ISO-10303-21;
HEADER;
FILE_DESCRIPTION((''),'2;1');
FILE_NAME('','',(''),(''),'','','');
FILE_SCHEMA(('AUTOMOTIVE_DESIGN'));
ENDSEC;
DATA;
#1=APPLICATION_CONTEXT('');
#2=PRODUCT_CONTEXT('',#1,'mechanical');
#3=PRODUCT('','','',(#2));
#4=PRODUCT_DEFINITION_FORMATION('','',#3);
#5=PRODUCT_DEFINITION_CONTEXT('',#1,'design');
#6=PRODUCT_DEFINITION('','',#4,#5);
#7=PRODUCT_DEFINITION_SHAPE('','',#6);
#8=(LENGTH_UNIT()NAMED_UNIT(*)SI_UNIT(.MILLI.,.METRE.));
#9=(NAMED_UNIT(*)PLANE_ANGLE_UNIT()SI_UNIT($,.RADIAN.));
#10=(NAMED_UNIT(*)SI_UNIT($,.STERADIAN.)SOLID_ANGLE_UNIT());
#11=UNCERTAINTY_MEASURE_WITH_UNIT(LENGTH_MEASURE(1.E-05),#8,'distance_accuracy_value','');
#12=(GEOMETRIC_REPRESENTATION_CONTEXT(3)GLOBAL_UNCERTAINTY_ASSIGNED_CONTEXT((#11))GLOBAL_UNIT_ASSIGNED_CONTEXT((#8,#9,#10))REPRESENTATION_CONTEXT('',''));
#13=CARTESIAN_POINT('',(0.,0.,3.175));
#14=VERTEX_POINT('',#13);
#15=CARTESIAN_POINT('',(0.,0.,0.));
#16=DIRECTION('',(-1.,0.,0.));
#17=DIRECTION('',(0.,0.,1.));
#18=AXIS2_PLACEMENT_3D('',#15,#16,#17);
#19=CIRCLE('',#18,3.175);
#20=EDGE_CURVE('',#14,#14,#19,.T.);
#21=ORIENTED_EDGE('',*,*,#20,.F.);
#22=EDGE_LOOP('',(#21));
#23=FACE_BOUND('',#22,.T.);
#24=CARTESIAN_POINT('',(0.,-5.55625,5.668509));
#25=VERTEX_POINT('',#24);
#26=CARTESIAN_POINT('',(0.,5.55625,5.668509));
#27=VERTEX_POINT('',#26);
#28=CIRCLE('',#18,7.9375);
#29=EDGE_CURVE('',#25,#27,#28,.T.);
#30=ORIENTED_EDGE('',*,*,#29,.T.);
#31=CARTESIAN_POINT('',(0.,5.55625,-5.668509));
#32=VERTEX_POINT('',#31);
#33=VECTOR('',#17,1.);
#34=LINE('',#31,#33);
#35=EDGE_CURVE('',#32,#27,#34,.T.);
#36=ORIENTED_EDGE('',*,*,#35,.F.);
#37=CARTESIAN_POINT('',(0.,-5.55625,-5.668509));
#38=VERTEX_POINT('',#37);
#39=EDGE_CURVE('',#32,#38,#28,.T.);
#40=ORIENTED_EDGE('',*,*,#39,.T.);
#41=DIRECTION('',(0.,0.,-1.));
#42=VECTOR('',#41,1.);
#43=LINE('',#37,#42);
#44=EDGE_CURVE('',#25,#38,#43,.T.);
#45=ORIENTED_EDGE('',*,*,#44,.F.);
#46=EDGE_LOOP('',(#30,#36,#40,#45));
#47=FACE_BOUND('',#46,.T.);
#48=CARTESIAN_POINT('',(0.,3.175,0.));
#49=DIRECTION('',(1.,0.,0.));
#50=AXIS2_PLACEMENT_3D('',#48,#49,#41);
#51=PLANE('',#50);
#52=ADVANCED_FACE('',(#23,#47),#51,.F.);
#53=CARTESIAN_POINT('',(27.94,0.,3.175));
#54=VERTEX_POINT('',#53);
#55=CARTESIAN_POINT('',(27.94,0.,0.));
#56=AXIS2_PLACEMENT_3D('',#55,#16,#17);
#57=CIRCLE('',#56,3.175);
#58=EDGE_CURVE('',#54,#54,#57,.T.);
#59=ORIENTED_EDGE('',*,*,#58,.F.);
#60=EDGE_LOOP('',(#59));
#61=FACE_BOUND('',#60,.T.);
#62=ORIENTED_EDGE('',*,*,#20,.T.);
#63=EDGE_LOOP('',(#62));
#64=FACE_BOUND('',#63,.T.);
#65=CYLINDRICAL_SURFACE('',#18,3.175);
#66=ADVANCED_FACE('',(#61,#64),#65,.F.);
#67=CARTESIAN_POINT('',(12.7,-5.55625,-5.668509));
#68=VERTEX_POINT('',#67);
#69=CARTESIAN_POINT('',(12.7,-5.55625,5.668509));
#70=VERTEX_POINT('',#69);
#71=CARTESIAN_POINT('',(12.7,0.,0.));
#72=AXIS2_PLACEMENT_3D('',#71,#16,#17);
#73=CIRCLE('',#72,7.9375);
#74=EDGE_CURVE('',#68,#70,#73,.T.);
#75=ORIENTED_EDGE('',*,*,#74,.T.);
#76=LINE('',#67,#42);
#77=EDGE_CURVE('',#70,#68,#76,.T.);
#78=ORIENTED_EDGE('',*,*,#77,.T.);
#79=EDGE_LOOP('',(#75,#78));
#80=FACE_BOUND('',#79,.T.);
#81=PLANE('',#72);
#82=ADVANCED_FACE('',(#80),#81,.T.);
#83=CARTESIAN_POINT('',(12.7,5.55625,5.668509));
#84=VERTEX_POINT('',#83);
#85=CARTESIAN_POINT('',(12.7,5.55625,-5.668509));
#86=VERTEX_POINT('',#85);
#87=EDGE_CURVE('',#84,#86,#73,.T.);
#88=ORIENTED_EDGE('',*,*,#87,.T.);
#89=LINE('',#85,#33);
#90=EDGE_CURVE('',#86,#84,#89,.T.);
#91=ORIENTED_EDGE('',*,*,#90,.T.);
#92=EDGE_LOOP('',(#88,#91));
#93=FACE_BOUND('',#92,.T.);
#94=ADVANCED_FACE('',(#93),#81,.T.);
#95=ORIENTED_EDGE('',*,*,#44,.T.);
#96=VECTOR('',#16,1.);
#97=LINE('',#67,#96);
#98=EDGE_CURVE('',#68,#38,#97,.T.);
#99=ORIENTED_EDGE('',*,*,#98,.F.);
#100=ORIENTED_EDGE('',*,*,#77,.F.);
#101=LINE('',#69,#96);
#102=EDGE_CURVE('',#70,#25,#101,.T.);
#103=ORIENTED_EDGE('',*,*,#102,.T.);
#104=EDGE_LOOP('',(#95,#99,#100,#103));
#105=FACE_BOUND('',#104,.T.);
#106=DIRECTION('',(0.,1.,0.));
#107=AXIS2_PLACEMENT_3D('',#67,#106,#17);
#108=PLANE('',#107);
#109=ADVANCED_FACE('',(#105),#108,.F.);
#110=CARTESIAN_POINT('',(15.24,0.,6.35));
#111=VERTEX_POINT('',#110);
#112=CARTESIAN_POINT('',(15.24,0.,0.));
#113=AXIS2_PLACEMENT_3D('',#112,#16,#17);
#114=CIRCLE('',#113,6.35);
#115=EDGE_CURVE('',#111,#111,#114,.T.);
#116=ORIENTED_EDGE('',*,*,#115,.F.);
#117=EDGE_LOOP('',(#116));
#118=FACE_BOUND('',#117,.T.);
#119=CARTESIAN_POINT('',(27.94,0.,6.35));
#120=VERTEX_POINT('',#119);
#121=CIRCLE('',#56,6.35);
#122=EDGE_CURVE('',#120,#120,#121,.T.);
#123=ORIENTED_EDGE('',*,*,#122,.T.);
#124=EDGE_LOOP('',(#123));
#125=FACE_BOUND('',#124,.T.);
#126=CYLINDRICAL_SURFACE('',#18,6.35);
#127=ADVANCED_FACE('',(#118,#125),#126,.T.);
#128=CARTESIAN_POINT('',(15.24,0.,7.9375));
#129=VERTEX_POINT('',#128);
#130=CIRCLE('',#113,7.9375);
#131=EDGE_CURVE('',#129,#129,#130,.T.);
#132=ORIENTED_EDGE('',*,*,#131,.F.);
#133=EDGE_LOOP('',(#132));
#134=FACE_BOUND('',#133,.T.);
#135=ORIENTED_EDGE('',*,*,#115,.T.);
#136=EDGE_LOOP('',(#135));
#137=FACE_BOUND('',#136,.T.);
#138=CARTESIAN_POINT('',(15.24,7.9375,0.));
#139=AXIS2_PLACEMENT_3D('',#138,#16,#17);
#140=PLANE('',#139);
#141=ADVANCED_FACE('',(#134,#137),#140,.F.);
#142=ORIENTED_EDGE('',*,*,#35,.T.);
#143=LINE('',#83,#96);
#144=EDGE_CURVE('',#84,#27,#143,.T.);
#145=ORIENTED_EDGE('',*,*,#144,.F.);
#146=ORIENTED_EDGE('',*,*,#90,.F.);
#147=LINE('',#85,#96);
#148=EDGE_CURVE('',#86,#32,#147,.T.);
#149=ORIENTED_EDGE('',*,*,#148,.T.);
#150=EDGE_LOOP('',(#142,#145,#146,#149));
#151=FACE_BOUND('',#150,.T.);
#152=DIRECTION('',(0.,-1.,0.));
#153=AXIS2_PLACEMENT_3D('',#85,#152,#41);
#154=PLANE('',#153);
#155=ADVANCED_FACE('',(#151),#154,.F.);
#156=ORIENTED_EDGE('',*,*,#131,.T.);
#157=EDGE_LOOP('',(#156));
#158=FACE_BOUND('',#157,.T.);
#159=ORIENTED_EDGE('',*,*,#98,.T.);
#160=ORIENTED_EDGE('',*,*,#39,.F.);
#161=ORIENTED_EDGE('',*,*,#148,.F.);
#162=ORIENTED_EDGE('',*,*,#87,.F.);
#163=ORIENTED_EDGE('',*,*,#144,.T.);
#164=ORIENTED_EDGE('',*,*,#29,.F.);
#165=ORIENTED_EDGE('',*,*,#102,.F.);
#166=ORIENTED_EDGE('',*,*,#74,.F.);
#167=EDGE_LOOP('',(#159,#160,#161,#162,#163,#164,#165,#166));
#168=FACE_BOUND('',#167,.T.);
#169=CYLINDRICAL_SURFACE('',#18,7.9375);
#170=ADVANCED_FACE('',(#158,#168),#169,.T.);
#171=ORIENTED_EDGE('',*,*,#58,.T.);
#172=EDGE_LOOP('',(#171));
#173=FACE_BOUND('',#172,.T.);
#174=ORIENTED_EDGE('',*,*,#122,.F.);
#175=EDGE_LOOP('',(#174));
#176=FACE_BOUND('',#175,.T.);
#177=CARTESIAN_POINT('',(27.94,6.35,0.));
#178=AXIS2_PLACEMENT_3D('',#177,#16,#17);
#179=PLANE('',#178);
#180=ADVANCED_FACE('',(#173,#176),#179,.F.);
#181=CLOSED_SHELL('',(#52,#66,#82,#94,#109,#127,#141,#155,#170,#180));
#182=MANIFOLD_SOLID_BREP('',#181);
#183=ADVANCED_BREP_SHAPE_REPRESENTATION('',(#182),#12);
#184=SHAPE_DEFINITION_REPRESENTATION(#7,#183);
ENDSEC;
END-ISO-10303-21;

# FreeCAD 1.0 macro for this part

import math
import FreeCAD as App
import Part
import Sketcher

V = App.Vector
Q = App.Units.Quantity

doc = App.newDocument("Part")
body = doc.addObject("PartDesign::Body", "Body")

sketch1 = body.newObject("Sketcher::SketchObject", "Sketch")
sketch1.AttachmentSupport = (doc.getObject("XY_Plane"), [""])
sketch1.MapMode = "FlatFace"
sketch1.addGeometry([
    Part.LineSegment(V(0, 7.9375, 0), V(0, 3.175, 0)),
    Part.LineSegment(V(0, 3.175, 0), V(27.94, 3.175, 0)),
    Part.LineSegment(V(27.94, 3.175, 0), V(27.94, 6.35, 0)),
    Part.LineSegment(V(27.94, 6.35, 0), V(15.24, 6.35, 0)),
    Part.LineSegment(V(15.24, 6.35, 0), V(15.24, 7.9375, 0)),
    Part.LineSegment(V(15.24, 7.9375, 0), V(0, 7.9375, 0)),
], False)
sketch1.addConstraint([
    Sketcher.Constraint("Coincident", 0, 2, 1, 1),
    Sketcher.Constraint("Coincident", 1, 2, 2, 1),
    Sketcher.Constraint("Coincident", 2, 2, 3, 1),
    Sketcher.Constraint("Coincident", 3, 2, 4, 1),
    Sketcher.Constraint("Coincident", 4, 2, 5, 1),
    Sketcher.Constraint("Coincident", 5, 2, 0, 1),
    Sketcher.Constraint("Vertical", 0),
    Sketcher.Constraint("Horizontal", 1),
    Sketcher.Constraint("Vertical", 2),
    Sketcher.Constraint("Horizontal", 3),
    Sketcher.Constraint("Vertical", 4),
    Sketcher.Constraint("Horizontal", 5),
    Sketcher.Constraint("PointOnObject", 0, 2, -2),
    Sketcher.Constraint("DistanceX", 1, 1, 1, 2, Q("1.1 in")),
    Sketcher.Constraint("DistanceX", 3, 2, 3, 1, Q("0.5 in")),
    Sketcher.Constraint("DistanceY", 0, 2, 0, 1, Q("0.1875 in")),
    Sketcher.Constraint("DistanceY", 2, 1, 2, 2, Q("0.125 in")),
    Sketcher.Constraint("DistanceY", -1, 1, 2, 2, Q("0.25 in")),
])
revolution = body.newObject("PartDesign::Revolution", "Revolution")
revolution.Profile = sketch1
revolution.ReferenceAxis = (sketch1, ["H_Axis"])
revolution.Angle = 360

sketch2 = body.newObject("Sketcher::SketchObject", "Sketch001")
sketch2.AttachmentSupport = (doc.getObject("YZ_Plane"), [""])
sketch2.MapMode = "FlatFace"
sketch2.AttachmentOffset = App.Placement(V(0, 0, 0.5 * 25.4), App.Rotation())
sketch2.addGeometry([
    Part.LineSegment(V(5.55625, -5.668509, 0), V(5.55625, 5.668509, 0)),
    Part.ArcOfCircle(Part.Circle(V(0, 0, 0), V(0, 0, 1), 7.9375), math.radians(-45.572996), math.radians(45.572996)),
    Part.LineSegment(V(-5.55625, 5.668509, 0), V(-5.55625, -5.668509, 0)),
    Part.ArcOfCircle(Part.Circle(V(0, 0, 0), V(0, 0, 1), 7.9375), math.radians(134.427004), math.radians(225.572996)),
], False)
sketch2.addConstraint([
    Sketcher.Constraint("Coincident", 0, 1, 1, 1),
    Sketcher.Constraint("Coincident", 1, 2, 0, 2),
    Sketcher.Constraint("Coincident", 2, 1, 3, 1),
    Sketcher.Constraint("Coincident", 3, 2, 2, 2),
    Sketcher.Constraint("Vertical", 0),
    Sketcher.Constraint("Vertical", 2),
    Sketcher.Constraint("Coincident", 1, 3, -1, 1),
    Sketcher.Constraint("Coincident", 3, 3, -1, 1),
    Sketcher.Constraint("Equal", 1, 3),
    Sketcher.Constraint("Horizontal", 1, 2, 2, 1),
    Sketcher.Constraint("Radius", 1, Q("0.3125 in")),
    Sketcher.Constraint("DistanceX", -1, 1, 0, 1, Q("0.21875 in")),
])
pocket1 = body.newObject("PartDesign::Pocket", "Pocket")
pocket1.Profile = sketch2
pocket1.Length = Q("0.5 in")

doc.recompute()
